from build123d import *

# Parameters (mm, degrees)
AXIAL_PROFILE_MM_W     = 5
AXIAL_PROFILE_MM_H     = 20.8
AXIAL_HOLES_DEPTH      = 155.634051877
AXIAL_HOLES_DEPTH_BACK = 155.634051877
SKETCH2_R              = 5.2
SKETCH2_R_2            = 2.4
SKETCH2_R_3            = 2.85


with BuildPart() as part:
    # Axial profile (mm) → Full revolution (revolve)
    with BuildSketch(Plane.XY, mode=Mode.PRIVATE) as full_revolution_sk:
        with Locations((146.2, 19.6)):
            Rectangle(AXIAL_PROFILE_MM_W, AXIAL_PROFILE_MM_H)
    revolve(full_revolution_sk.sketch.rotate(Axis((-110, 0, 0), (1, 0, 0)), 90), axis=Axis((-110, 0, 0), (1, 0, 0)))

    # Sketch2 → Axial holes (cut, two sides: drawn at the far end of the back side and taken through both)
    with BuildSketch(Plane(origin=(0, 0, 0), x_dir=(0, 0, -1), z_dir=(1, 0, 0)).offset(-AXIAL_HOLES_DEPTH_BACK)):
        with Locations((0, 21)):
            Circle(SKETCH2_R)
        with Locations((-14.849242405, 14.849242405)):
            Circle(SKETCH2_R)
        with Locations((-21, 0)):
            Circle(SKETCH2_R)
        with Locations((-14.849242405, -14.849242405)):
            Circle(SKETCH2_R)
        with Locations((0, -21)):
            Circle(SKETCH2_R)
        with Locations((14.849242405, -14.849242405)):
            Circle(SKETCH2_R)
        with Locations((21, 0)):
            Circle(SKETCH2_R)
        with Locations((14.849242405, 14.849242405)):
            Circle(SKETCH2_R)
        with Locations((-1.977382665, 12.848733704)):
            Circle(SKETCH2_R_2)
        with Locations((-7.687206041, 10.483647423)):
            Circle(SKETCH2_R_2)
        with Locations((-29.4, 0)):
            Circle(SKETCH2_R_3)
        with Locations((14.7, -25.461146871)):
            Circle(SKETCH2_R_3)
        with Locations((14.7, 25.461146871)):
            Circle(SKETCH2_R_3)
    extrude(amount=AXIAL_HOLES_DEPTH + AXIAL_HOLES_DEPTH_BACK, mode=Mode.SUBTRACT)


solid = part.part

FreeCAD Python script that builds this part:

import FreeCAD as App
import Part
import Sketcher
from FreeCAD import Vector

doc = App.newDocument("Part")
body = doc.addObject("PartDesign::Body", "Body")

# Sketch on XY plane
sketch1 = body.newObject("Sketcher::SketchObject", "Sketch")
sketch1.AttachmentSupport = (doc.getObject("XY_Plane"), [""])
sketch1.MapMode = "FlatFace"
sketch1.addGeometry(Part.LineSegment(Vector(144, 30, 0), Vector(144, 9, 0)), False)
sketch1.addGeometry(Part.LineSegment(Vector(144, 9, 0), Vector(149, 9, 0)), False)
sketch1.addGeometry(Part.LineSegment(Vector(149, 9, 0), Vector(149, 30, 0)), False)
sketch1.addGeometry(Part.LineSegment(Vector(149, 30, 0), Vector(144, 30, 0)), False)
sketch1.addConstraint(Sketcher.Constraint("Coincident", 0, 2, 1, 1))
sketch1.addConstraint(Sketcher.Constraint("Coincident", 1, 2, 2, 1))
sketch1.addConstraint(Sketcher.Constraint("Coincident", 2, 2, 3, 1))
sketch1.addConstraint(Sketcher.Constraint("Coincident", 3, 2, 0, 1))
sketch1.addConstraint(Sketcher.Constraint("Vertical", 0))
sketch1.addConstraint(Sketcher.Constraint("Horizontal", 1))
sketch1.addConstraint(Sketcher.Constraint("Vertical", 2))
sketch1.addConstraint(Sketcher.Constraint("Horizontal", 3))
sketch1.addConstraint(Sketcher.Constraint("DistanceX", 1, 1, 1, 2, 5.0))
sketch1.addConstraint(Sketcher.Constraint("DistanceY", 0, 2, 0, 1, 20.8))
sketch1.addConstraint(Sketcher.Constraint("DistanceY", -1, 1, 2, 2, 30.0))
sketch1.addConstraint(Sketcher.Constraint("DistanceX", -1, 1, 0, 2, 143.7))
revolution = body.newObject("PartDesign::Revolution", "Revolution")
revolution.Profile = sketch1
revolution.ReferenceAxis = (sketch1, ["H_Axis"])
revolution.Angle = 360

# Sketch on YZ plane
sketch2 = body.newObject("Sketcher::SketchObject", "Sketch001")
sketch2.AttachmentSupport = (doc.getObject("YZ_Plane"), [""])
sketch2.MapMode = "FlatFace"
sketch2.addGeometry(Part.Circle(Vector(21, 0, 0), Vector(0, 0, 1), 5.2), False)
sketch2.addGeometry(Part.Circle(Vector(14.8, 14.8, 0), Vector(0, 0, 1), 5.2), False)
sketch2.addGeometry(Part.Circle(Vector(0, 21, 0), Vector(0, 0, 1), 5.2), False)
sketch2.addGeometry(Part.Circle(Vector(-14.8, 14.8, 0), Vector(0, 0, 1), 5.2), False)
sketch2.addGeometry(Part.Circle(Vector(-21, 0, 0), Vector(0, 0, 1), 5.2), False)
sketch2.addGeometry(Part.Circle(Vector(-14.8, -14.8, 0), Vector(0, 0, 1), 5.2), False)
sketch2.addGeometry(Part.Circle(Vector(0, -21, 0), Vector(0, 0, 1), 5.2), False)
sketch2.addGeometry(Part.Circle(Vector(14.8, -14.8, 0), Vector(0, 0, 1), 5.2), False)
sketch2.addGeometry(Part.Circle(Vector(12.8, 2, 0), Vector(0, 0, 1), 2.4), False)
sketch2.addGeometry(Part.Circle(Vector(10.5, 7.7, 0), Vector(0, 0, 1), 2.4), False)
sketch2.addGeometry(Part.Circle(Vector(0, 29.4, 0), Vector(0, 0, 1), 2.9), False)
sketch2.addGeometry(Part.Circle(Vector(-25.5, -14.7, 0), Vector(0, 0, 1), 2.9), False)
sketch2.addGeometry(Part.Circle(Vector(25.5, -14.7, 0), Vector(0, 0, 1), 2.9), False)
sketch2.addConstraint(Sketcher.Constraint("Equal", 0, 1))
sketch2.addConstraint(Sketcher.Constraint("Equal", 1, 2))
sketch2.addConstraint(Sketcher.Constraint("Equal", 2, 3))
sketch2.addConstraint(Sketcher.Constraint("Equal", 3, 4))
sketch2.addConstraint(Sketcher.Constraint("Equal", 4, 5))
sketch2.addConstraint(Sketcher.Constraint("Equal", 5, 6))
sketch2.addConstraint(Sketcher.Constraint("Equal", 6, 7))
sketch2.addConstraint(Sketcher.Constraint("Equal", 8, 9))
sketch2.addConstraint(Sketcher.Constraint("Equal", 10, 11))
sketch2.addConstraint(Sketcher.Constraint("Equal", 11, 12))
sketch2.addConstraint(Sketcher.Constraint("Symmetric", 0, 3, 4, 3, -1, 1))
sketch2.addConstraint(Sketcher.Constraint("Symmetric", 1, 3, 5, 3, -1, 1))
sketch2.addConstraint(Sketcher.Constraint("Symmetric", 2, 3, 6, 3, -1, 1))
sketch2.addConstraint(Sketcher.Constraint("Symmetric", 3, 3, 7, 3, -1, 1))
sketch2.addConstraint(Sketcher.Constraint("Symmetric", 1, 3, 3, 3, -2))
sketch2.addConstraint(Sketcher.Constraint("Symmetric", 11, 3, 12, 3, -2))
sketch2.addConstraint(Sketcher.Constraint("PointOnObject", 0, 3, -1))
sketch2.addConstraint(Sketcher.Constraint("PointOnObject", 2, 3, -2))
sketch2.addConstraint(Sketcher.Constraint("PointOnObject", 10, 3, -2))
sketch2.addConstraint(Sketcher.Constraint("Diameter", 0, 10.4))
sketch2.addConstraint(Sketcher.Constraint("Diameter", 8, 4.8))
sketch2.addConstraint(Sketcher.Constraint("Diameter", 10, 5.7))
sketch2.addConstraint(Sketcher.Constraint("DistanceX", -1, 1, 0, 3, 21.0))
sketch2.addConstraint(Sketcher.Constraint("DistanceY", -1, 1, 2, 3, 21.0))
sketch2.addConstraint(Sketcher.Constraint("DistanceY", -1, 1, 10, 3, 29.4))
sketch2.addConstraint(Sketcher.Constraint("DistanceY", 11, 3, -1, 1, 14.7))
sketch2.addConstraint(Sketcher.Constraint("DistanceX", 9, 3, 12, 3, 14.977499))
sketch2.addConstraint(Sketcher.Constraint("DistanceX", 8, 3, 1, 3, 2.000509))
sketch2.addConstraint(Sketcher.Constraint("DistanceY", 8, 3, 1, 3, 12.87186))
sketch2.addConstraint(Sketcher.Constraint("DistanceY", 7, 3, 9, 3, 22.536448))
sketch2.addConstraint(Sketcher.Constraint("DistanceX", 11, 3, 7, 3, 40.310389))
sketch2.addConstraint(Sketcher.Constraint("DistanceX", -1, 1, 1, 3, 14.849242))
sketch2.addConstraint(Sketcher.Constraint("DistanceY", -1, 1, 1, 3, 14.849242))
pocket1 = body.newObject("PartDesign::Pocket", "Pocket")
pocket1.Profile = sketch2
pocket1.Type = "ThroughAll"
pocket1.Midplane = True

doc.recompute()
